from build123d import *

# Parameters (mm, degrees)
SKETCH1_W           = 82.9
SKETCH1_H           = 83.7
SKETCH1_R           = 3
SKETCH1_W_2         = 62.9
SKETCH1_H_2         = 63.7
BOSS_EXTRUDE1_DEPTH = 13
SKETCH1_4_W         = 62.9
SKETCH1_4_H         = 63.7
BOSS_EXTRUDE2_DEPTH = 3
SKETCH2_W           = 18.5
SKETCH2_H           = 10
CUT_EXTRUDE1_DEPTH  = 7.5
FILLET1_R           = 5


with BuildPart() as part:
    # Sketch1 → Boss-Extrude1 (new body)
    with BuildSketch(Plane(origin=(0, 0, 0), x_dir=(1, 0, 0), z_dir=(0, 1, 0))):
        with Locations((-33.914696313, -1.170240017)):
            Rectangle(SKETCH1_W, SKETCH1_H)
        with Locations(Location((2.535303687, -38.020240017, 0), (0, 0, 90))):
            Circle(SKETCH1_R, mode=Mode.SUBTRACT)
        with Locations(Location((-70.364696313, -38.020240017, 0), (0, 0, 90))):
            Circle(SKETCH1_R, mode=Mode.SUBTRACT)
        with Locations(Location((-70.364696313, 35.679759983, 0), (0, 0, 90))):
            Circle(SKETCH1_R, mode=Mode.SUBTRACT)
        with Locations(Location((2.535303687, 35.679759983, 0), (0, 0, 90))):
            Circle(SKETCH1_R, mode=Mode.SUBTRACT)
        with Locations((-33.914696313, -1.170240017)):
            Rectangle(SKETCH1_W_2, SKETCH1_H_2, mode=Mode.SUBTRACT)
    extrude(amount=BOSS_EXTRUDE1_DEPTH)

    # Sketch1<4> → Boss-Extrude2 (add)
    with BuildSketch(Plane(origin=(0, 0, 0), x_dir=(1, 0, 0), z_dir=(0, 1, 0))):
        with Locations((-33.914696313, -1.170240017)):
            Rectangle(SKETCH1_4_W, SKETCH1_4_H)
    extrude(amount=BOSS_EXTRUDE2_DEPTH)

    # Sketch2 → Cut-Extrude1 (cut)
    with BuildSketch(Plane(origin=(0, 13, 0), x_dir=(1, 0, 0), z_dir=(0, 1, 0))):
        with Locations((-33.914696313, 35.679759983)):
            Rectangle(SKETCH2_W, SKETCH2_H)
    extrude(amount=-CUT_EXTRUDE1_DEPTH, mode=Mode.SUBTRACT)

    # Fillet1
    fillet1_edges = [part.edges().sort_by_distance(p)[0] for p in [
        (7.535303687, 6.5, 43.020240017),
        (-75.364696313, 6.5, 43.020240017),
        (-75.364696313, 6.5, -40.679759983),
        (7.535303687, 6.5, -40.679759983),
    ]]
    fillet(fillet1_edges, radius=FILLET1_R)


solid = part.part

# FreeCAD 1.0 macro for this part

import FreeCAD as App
import Part
import Sketcher
from FreeCAD import Vector


def edges_at(feature, points):
    """Names of the edges that pass closest to the given points."""
    edges = feature.Shape.Edges
    near = lambda p: min(range(len(edges)), key=lambda i: edges[i].distToShape(Part.Vertex(*p))[0])
    return sorted({f"Edge{near(p) + 1}" for p in points})

doc = App.newDocument("Part")
params = doc.addObject("Spreadsheet::Sheet", "Params")
for row, (alias, value) in enumerate([
    ("sketch1_diameter", "6 mm"),
    ("sketch1_width", "82.9 mm"),
    ("sketch1_width2", "62.9 mm"),
    ("sketch1_height", "83.7 mm"),
    ("sketch1_height2", "63.7 mm"),
    ("pad1_length", "13 mm"),
    ("sketch2_width", "62.9 mm"),
    ("sketch2_height", "63.7 mm"),
    ("pad2_length", "3 mm"),
    ("sketch3_height", "10 mm"),
    ("sketch3_width", "18.5 mm"),
    ("pocket1_length", "7.5 mm"),
    ("fillet_radius", "5 mm"),
], start=1):
    params.set(f"A{row}", alias)
    params.set(f"B{row}", "=" + value)
    params.setAlias(f"B{row}", alias)

body = doc.addObject("PartDesign::Body", "Body")

# Sketch on XZ plane
sketch1 = body.newObject("Sketcher::SketchObject", "Sketch")
sketch1.AttachmentSupport = (doc.getObject("XZ_Plane"), [""])
sketch1.MapMode = "FlatFace"
sketch1.addGeometry([
    Part.LineSegment(Vector(-75.364696, -40.67976, 0), Vector(-75.364696, 43.02024, 0)),  # 0
    Part.LineSegment(Vector(-75.364696, 43.02024, 0), Vector(7.535304, 43.02024, 0)),  # 1
    Part.LineSegment(Vector(7.535304, 43.02024, 0), Vector(7.535304, -40.67976, 0)),  # 2
    Part.LineSegment(Vector(7.535304, -40.67976, 0), Vector(-75.364696, -40.67976, 0)),  # 3
    Part.Circle(Vector(-70.364696, 38.02024, 0), Vector(0, 0, 1), 3),  # 4
    Part.Circle(Vector(2.535304, 38.02024, 0), Vector(0, 0, 1), 3),  # 5
    Part.LineSegment(Vector(-2.464696, 33.02024, 0), Vector(-65.364696, 33.02024, 0)),  # 6
    Part.LineSegment(Vector(-65.364696, 33.02024, 0), Vector(-65.364696, -30.67976, 0)),  # 7
    Part.LineSegment(Vector(-65.364696, -30.67976, 0), Vector(-2.464696, -30.67976, 0)),  # 8
    Part.LineSegment(Vector(-2.464696, -30.67976, 0), Vector(-2.464696, 33.02024, 0)),  # 9
    Part.Circle(Vector(-70.364696, -35.67976, 0), Vector(0, 0, 1), 3),  # 10
    Part.Circle(Vector(2.535304, -35.67976, 0), Vector(0, 0, 1), 3),  # 11
], False)
sketch1.addConstraint([
    Sketcher.Constraint("Coincident", 0, 2, 1, 1),
    Sketcher.Constraint("Coincident", 1, 2, 2, 1),
    Sketcher.Constraint("Coincident", 2, 2, 3, 1),
    Sketcher.Constraint("Coincident", 3, 2, 0, 1),
    Sketcher.Constraint("Coincident", 6, 2, 7, 1),
    Sketcher.Constraint("Coincident", 7, 2, 8, 1),
    Sketcher.Constraint("Coincident", 8, 2, 9, 1),
    Sketcher.Constraint("Coincident", 9, 2, 6, 1),
    Sketcher.Constraint("Vertical", 0),
    Sketcher.Constraint("Horizontal", 1),
    Sketcher.Constraint("Vertical", 2),
    Sketcher.Constraint("Horizontal", 3),
    Sketcher.Constraint("Horizontal", 6),
    Sketcher.Constraint("Vertical", 7),
    Sketcher.Constraint("Horizontal", 8),
    Sketcher.Constraint("Vertical", 9),
    Sketcher.Constraint("Equal", 4, 5),
    Sketcher.Constraint("Equal", 5, 10),
    Sketcher.Constraint("Equal", 10, 11),
    Sketcher.Constraint("Horizontal", 4, 3, 5, 3),
    Sketcher.Constraint("Horizontal", 10, 3, 11, 3),
    Sketcher.Constraint("Vertical", 4, 3, 10, 3),
    Sketcher.Constraint("Vertical", 5, 3, 11, 3),
    Sketcher.Constraint("Diameter", 4, 6.0),
    Sketcher.Constraint("DistanceX", 1, 1, 1, 2, 82.9),
    Sketcher.Constraint("DistanceX", 6, 2, 6, 1, 62.9),
    Sketcher.Constraint("DistanceY", 0, 1, 0, 2, 83.7),
    Sketcher.Constraint("DistanceY", 7, 2, 7, 1, 63.7),
    Sketcher.Constraint("DistanceX", 0, 2, 4, 3, 5.0),
    Sketcher.Constraint("DistanceY", 4, 3, 0, 2, 5.0),
    Sketcher.Constraint("DistanceX", 5, 3, 1, 2, 5.0),
    Sketcher.Constraint("DistanceY", 2, 2, 11, 3, 5.0),
    Sketcher.Constraint("DistanceX", 4, 3, 6, 2, 5.0),
    Sketcher.Constraint("DistanceY", 6, 2, 4, 3, 5.0),
    Sketcher.Constraint("DistanceY", -1, 1, 4, 3, 38.02024),
    Sketcher.Constraint("DistanceX", 4, 3, -1, 1, 70.364696),
])
sketch1.setExpression("Constraints[23]", "Params.sketch1_diameter")
sketch1.setExpression("Constraints[24]", "Params.sketch1_width")
sketch1.setExpression("Constraints[25]", "Params.sketch1_width2")
sketch1.setExpression("Constraints[26]", "Params.sketch1_height")
sketch1.setExpression("Constraints[27]", "Params.sketch1_height2")
pad1 = body.newObject("PartDesign::Pad", "Pad")
pad1.Profile = sketch1
pad1.setExpression("Length", "Params.pad1_length")
pad1.Reversed = True

# Sketch on XZ plane
sketch2 = body.newObject("Sketcher::SketchObject", "Sketch001")
sketch2.AttachmentSupport = (doc.getObject("XZ_Plane"), [""])
sketch2.MapMode = "FlatFace"
sketch2.addGeometry([
    Part.LineSegment(Vector(-65.364696, -30.67976, 0), Vector(-65.364696, 33.02024, 0)),
    Part.LineSegment(Vector(-65.364696, 33.02024, 0), Vector(-2.464696, 33.02024, 0)),
    Part.LineSegment(Vector(-2.464696, 33.02024, 0), Vector(-2.464696, -30.67976, 0)),
    Part.LineSegment(Vector(-2.464696, -30.67976, 0), Vector(-65.364696, -30.67976, 0)),
], False)
sketch2.addConstraint([
    Sketcher.Constraint("Coincident", 0, 2, 1, 1),
    Sketcher.Constraint("Coincident", 1, 2, 2, 1),
    Sketcher.Constraint("Coincident", 2, 2, 3, 1),
    Sketcher.Constraint("Coincident", 3, 2, 0, 1),
    Sketcher.Constraint("Vertical", 0),
    Sketcher.Constraint("Horizontal", 1),
    Sketcher.Constraint("Vertical", 2),
    Sketcher.Constraint("Horizontal", 3),
    Sketcher.Constraint("DistanceX", 1, 1, 1, 2, 62.9),
    Sketcher.Constraint("DistanceY", 0, 1, 0, 2, 63.7),
    Sketcher.Constraint("DistanceY", -1, 1, 0, 2, 33.02024),
    Sketcher.Constraint("DistanceX", 0, 2, -1, 1, 65.364696),
])
sketch2.setExpression("Constraints[8]", "Params.sketch2_width")
sketch2.setExpression("Constraints[9]", "Params.sketch2_height")
pad2 = body.newObject("PartDesign::Pad", "Pad001")
pad2.Profile = sketch2
pad2.setExpression("Length", "Params.pad2_length")
pad2.Reversed = True

# Sketch on XZ plane
sketch3 = body.newObject("Sketcher::SketchObject", "Sketch002")
sketch3.AttachmentSupport = (doc.getObject("XZ_Plane"), [""])
sketch3.MapMode = "FlatFace"
sketch3.AttachmentOffset = App.Placement(Vector(0, 0, -13), App.Rotation())
sketch3.addGeometry([
    Part.LineSegment(Vector(-43.164696, -40.67976, 0), Vector(-43.164696, -30.67976, 0)),
    Part.LineSegment(Vector(-43.164696, -30.67976, 0), Vector(-24.664696, -30.67976, 0)),
    Part.LineSegment(Vector(-24.664696, -30.67976, 0), Vector(-24.664696, -40.67976, 0)),
    Part.LineSegment(Vector(-24.664696, -40.67976, 0), Vector(-43.164696, -40.67976, 0)),
], False)
sketch3.addConstraint([
    Sketcher.Constraint("Coincident", 0, 2, 1, 1),
    Sketcher.Constraint("Coincident", 1, 2, 2, 1),
    Sketcher.Constraint("Coincident", 2, 2, 3, 1),
    Sketcher.Constraint("Coincident", 3, 2, 0, 1),
    Sketcher.Constraint("Vertical", 0),
    Sketcher.Constraint("Horizontal", 1),
    Sketcher.Constraint("Vertical", 2),
    Sketcher.Constraint("Horizontal", 3),
    Sketcher.Constraint("DistanceY", 0, 1, 0, 2, 10.0),
    Sketcher.Constraint("DistanceX", 1, 1, 1, 2, 18.5),
    Sketcher.Constraint("DistanceY", 0, 2, -1, 1, 30.67976),
    Sketcher.Constraint("DistanceX", 0, 2, -1, 1, 43.164696),
])
sketch3.setExpression("Constraints[8]", "Params.sketch3_height")
sketch3.setExpression("Constraints[9]", "Params.sketch3_width")
pocket1 = body.newObject("PartDesign::Pocket", "Pocket")
pocket1.Profile = sketch3
pocket1.setExpression("Length", "Params.pocket1_length")
pocket1.Reversed = True
doc.recompute()

fillet = body.newObject("PartDesign::Fillet", "Fillet")
fillet.Base = (pocket1, edges_at(pocket1, [
    (7.535, 6.5, 43.02),
    (-75.365, 6.5, 43.02),
    (-75.365, 6.5, -40.68),
    (7.535, 6.5, -40.68),
]))
fillet.setExpression("Radius", "Params.fillet_radius")

doc.recompute()
